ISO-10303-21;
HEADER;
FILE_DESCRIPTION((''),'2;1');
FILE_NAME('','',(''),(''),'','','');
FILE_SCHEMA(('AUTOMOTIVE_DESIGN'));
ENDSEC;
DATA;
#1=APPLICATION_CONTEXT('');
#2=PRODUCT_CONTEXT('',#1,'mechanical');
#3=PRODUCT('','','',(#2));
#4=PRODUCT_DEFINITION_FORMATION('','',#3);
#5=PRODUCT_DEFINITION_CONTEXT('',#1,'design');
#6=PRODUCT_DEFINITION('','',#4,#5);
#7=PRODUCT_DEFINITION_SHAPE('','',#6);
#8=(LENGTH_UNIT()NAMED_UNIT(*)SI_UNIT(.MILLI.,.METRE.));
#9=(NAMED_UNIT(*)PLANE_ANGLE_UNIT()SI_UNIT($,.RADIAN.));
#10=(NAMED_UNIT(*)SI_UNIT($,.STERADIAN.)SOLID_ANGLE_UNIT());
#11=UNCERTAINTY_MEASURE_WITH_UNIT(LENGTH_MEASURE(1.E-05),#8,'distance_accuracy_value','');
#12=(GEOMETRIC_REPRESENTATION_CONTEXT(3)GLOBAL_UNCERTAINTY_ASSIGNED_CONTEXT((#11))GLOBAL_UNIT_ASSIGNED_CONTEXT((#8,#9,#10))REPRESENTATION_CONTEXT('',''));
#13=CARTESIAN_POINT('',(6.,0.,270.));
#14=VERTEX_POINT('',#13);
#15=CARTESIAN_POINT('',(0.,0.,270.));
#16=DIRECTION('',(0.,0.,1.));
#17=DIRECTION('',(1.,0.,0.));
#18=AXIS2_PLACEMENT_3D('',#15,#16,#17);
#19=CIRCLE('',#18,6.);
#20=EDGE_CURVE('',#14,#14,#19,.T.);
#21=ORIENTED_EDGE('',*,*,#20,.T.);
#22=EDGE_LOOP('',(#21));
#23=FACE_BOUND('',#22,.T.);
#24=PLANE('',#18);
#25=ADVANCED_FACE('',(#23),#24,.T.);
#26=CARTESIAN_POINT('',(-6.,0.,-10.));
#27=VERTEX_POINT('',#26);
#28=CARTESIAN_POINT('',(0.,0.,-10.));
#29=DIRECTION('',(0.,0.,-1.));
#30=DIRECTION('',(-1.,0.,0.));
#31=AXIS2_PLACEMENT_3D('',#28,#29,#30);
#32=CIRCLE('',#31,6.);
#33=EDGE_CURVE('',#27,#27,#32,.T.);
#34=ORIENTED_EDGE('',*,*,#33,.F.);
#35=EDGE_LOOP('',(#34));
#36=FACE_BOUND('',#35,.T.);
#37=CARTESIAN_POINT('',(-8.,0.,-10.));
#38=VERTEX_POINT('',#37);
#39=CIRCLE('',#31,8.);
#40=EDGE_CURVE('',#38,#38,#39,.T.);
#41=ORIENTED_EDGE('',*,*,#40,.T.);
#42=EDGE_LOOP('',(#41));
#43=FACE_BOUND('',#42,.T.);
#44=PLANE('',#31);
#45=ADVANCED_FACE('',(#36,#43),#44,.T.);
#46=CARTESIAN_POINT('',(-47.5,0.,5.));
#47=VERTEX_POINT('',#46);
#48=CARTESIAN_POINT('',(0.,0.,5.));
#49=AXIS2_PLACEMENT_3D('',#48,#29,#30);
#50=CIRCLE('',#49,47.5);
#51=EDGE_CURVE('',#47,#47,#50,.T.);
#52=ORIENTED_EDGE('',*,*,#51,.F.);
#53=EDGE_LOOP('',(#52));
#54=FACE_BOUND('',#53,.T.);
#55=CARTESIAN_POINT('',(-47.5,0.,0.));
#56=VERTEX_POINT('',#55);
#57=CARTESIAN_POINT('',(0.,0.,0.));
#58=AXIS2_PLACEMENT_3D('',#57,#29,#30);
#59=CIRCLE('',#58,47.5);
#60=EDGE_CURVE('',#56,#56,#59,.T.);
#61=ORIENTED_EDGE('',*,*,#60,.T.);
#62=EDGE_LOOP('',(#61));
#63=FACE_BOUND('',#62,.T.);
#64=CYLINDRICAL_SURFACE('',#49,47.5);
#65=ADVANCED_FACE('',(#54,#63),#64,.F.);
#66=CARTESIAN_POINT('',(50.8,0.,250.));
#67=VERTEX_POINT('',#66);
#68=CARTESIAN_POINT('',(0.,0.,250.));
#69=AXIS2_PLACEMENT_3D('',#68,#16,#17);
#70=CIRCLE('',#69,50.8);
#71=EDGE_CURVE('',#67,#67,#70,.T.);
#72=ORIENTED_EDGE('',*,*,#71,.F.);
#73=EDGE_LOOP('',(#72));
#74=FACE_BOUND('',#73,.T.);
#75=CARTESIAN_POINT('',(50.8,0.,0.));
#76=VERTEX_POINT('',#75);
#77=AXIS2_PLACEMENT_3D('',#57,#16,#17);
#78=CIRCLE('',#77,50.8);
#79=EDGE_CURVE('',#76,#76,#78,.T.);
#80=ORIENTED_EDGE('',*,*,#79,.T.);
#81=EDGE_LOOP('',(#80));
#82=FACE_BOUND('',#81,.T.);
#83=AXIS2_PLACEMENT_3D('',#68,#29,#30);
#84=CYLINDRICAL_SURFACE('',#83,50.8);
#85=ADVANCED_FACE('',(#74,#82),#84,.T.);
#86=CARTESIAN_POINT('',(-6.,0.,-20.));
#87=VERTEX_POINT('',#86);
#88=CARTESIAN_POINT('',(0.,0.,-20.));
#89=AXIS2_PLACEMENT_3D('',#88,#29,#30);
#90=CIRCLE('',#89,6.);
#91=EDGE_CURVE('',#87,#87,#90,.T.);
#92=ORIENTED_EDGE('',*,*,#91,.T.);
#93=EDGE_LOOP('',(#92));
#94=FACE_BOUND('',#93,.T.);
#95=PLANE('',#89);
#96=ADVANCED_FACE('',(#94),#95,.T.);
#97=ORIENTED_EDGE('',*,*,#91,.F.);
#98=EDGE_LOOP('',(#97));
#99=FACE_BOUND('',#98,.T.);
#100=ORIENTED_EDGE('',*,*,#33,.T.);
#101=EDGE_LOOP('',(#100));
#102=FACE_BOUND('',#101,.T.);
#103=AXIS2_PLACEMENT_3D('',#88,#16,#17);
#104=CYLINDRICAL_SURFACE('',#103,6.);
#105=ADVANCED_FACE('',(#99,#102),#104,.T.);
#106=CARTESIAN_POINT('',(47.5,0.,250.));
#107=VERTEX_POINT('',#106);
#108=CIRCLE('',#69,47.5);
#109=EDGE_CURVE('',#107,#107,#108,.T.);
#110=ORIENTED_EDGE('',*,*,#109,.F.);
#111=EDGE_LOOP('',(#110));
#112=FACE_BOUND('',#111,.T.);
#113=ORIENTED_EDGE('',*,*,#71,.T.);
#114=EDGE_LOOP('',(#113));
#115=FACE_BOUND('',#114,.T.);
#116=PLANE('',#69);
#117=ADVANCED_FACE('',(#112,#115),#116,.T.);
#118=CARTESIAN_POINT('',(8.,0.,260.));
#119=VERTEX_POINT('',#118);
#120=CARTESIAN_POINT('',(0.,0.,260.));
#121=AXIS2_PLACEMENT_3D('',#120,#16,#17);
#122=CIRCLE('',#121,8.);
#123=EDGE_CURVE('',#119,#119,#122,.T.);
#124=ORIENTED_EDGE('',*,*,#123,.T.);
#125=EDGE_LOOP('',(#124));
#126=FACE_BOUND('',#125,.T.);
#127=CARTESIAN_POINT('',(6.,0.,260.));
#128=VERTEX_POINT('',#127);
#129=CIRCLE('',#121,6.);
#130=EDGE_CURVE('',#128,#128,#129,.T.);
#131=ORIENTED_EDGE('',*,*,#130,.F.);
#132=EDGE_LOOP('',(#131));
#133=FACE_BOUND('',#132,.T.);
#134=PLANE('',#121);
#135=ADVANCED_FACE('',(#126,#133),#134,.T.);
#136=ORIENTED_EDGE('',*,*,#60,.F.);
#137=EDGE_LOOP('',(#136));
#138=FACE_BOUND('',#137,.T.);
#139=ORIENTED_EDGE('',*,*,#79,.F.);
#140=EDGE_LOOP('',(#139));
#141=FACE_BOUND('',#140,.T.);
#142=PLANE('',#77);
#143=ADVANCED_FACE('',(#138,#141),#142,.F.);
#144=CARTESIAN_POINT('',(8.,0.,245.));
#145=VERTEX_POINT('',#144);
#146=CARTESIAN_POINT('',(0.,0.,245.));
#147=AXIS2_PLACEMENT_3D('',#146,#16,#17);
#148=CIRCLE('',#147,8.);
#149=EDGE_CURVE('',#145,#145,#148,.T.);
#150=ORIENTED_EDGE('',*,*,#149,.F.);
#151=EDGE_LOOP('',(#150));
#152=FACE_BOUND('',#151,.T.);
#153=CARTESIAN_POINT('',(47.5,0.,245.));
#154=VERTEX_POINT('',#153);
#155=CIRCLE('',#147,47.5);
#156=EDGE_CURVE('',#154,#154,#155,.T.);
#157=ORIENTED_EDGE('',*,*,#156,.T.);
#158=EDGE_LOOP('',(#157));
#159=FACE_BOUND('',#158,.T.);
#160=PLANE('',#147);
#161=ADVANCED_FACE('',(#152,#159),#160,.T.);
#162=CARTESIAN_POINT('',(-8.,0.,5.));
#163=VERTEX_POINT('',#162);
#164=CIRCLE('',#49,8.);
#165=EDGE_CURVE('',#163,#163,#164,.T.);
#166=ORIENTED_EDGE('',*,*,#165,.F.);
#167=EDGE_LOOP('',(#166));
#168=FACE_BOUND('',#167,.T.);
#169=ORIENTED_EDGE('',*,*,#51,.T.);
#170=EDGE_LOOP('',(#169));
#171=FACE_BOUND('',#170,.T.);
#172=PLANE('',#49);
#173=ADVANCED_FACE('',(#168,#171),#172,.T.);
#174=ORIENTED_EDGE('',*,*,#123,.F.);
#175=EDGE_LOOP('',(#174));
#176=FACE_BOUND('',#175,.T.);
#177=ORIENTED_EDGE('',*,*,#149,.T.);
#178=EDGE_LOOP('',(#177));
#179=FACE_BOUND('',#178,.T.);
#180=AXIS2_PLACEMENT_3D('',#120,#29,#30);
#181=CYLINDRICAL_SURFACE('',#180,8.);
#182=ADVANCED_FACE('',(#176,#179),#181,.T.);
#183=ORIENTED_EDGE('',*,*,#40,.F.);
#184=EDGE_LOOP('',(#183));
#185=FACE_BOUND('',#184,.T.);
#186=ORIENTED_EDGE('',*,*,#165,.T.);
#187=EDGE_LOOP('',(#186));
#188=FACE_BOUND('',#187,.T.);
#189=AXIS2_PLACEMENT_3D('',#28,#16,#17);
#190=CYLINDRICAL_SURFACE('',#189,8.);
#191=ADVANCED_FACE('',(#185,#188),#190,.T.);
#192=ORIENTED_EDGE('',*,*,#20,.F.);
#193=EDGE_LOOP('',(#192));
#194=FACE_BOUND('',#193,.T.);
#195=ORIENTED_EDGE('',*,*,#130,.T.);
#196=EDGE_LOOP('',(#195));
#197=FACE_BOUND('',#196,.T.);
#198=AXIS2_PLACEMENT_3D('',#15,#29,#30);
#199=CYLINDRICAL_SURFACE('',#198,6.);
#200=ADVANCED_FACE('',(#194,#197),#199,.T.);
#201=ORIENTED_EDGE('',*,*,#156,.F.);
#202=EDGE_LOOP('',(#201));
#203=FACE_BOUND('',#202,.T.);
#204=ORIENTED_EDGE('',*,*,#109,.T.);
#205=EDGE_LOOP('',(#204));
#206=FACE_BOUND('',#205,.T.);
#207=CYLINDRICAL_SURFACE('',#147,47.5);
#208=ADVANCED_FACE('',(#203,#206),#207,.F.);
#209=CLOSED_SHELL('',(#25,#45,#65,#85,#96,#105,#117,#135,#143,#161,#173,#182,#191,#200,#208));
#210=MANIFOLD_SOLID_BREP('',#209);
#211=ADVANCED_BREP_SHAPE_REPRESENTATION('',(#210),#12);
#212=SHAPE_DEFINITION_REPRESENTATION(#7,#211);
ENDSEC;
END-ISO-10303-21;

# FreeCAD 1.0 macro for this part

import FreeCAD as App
import Part
import Sketcher

V = App.Vector

doc = App.newDocument("Part")
body = doc.addObject("PartDesign::Body", "Body")

# Sketch on XY plane
sketch1 = doc.addObject("Sketcher::SketchObject", "Sketch")
body.addObject(sketch1)
sketch1.AttachmentSupport = (doc.XY_Plane, [""])
sketch1.MapMode = "FlatFace"
sketch1.addGeometry(Part.Circle(V(0, 0, 0), V(0, 0, 1), 51), False)
sketch1.addConstraint(Sketcher.Constraint("Coincident", 0, 3, -1, 1))
sketch1.addConstraint(Sketcher.Constraint("Diameter", 0, 101.6))
pad1 = doc.addObject("PartDesign::Pad", "Pad")
body.addObject(pad1)
pad1.Profile = sketch1
pad1.Length = 250

# Sketch on XY plane
sketch2 = doc.addObject("Sketcher::SketchObject", "Sketch001")
body.addObject(sketch2)
sketch2.AttachmentSupport = (doc.XY_Plane, [""])
sketch2.MapMode = "FlatFace"
sketch2.AttachmentOffset = App.Placement(V(0, 0, 250), App.Rotation())
sketch2.addGeometry(Part.Circle(V(0, 0, 0), V(0, 0, 1), 48), False)
sketch2.addConstraint(Sketcher.Constraint("Coincident", 0, 3, -1, 1))
sketch2.addConstraint(Sketcher.Constraint("Diameter", 0, 95.0))
pocket1 = doc.addObject("PartDesign::Pocket", "Pocket")
body.addObject(pocket1)
pocket1.Profile = sketch2
pocket1.Length = 5

# Sketch on XY plane
sketch3 = doc.addObject("Sketcher::SketchObject", "Sketch002")
body.addObject(sketch3)
sketch3.AttachmentSupport = (doc.XY_Plane, [""])
sketch3.MapMode = "FlatFace"
sketch3.AttachmentOffset = App.Placement(V(0, 0, 5), App.Rotation())
sketch3.addGeometry(Part.Circle(V(0, 0, 0), V(0, 0, 1), 48), False)
sketch3.addConstraint(Sketcher.Constraint("Coincident", 0, 3, -1, 1))
sketch3.addConstraint(Sketcher.Constraint("Diameter", 0, 95.0))
pocket2 = doc.addObject("PartDesign::Pocket", "Pocket001")
body.addObject(pocket2)
pocket2.Profile = sketch3
pocket2.Length = 5

# Sketch on XY plane
sketch4 = doc.addObject("Sketcher::SketchObject", "Sketch003")
body.addObject(sketch4)
sketch4.AttachmentSupport = (doc.XY_Plane, [""])
sketch4.MapMode = "FlatFace"
sketch4.AttachmentOffset = App.Placement(V(0, 0, 5), App.Rotation())
sketch4.addGeometry(Part.Circle(V(0, 0, 0), V(0, 0, 1), 8), False)
sketch4.addConstraint(Sketcher.Constraint("Coincident", 0, 3, -1, 1))
sketch4.addConstraint(Sketcher.Constraint("Diameter", 0, 16.0))
pad2 = doc.addObject("PartDesign::Pad", "Pad001")
body.addObject(pad2)
pad2.Profile = sketch4
pad2.Length = 15
pad2.Reversed = True

# Sketch on XY plane
sketch5 = doc.addObject("Sketcher::SketchObject", "Sketch004")
body.addObject(sketch5)
sketch5.AttachmentSupport = (doc.XY_Plane, [""])
sketch5.MapMode = "FlatFace"
sketch5.AttachmentOffset = App.Placement(V(0, 0, 260), App.Rotation())
sketch5.addGeometry(Part.Circle(V(0, 0, 0), V(0, 0, 1), 8), False)
sketch5.addConstraint(Sketcher.Constraint("Coincident", 0, 3, -1, 1))
sketch5.addConstraint(Sketcher.Constraint("Diameter", 0, 16.0))
pad3 = doc.addObject("PartDesign::Pad", "Pad002")
body.addObject(pad3)
pad3.Profile = sketch5
pad3.Length = 15
pad3.Reversed = True

# Sketch on XY plane
sketch6 = doc.addObject("Sketcher::SketchObject", "Sketch005")
body.addObject(sketch6)
sketch6.AttachmentSupport = (doc.XY_Plane, [""])
sketch6.MapMode = "FlatFace"
sketch6.AttachmentOffset = App.Placement(V(0, 0, -10), App.Rotation())
sketch6.addGeometry(Part.Circle(V(0, 0, 0), V(0, 0, 1), 6), False)
sketch6.addConstraint(Sketcher.Constraint("Coincident", 0, 3, -1, 1))
sketch6.addConstraint(Sketcher.Constraint("Diameter", 0, 12.0))
pad4 = doc.addObject("PartDesign::Pad", "Pad003")
body.addObject(pad4)
pad4.Profile = sketch6
pad4.Length = 10
pad4.Reversed = True

# Sketch on XY plane
sketch7 = doc.addObject("Sketcher::SketchObject", "Sketch006")
body.addObject(sketch7)
sketch7.AttachmentSupport = (doc.XY_Plane, [""])
sketch7.MapMode = "FlatFace"
sketch7.AttachmentOffset = App.Placement(V(0, 0, 270), App.Rotation())
sketch7.addGeometry(Part.Circle(V(0, 0, 0), V(0, 0, 1), 6), False)
sketch7.addConstraint(Sketcher.Constraint("Coincident", 0, 3, -1, 1))
sketch7.addConstraint(Sketcher.Constraint("Diameter", 0, 12.0))
pad5 = doc.addObject("PartDesign::Pad", "Pad004")
body.addObject(pad5)
pad5.Profile = sketch7
pad5.Length = 10
pad5.Reversed = True

doc.recompute()
